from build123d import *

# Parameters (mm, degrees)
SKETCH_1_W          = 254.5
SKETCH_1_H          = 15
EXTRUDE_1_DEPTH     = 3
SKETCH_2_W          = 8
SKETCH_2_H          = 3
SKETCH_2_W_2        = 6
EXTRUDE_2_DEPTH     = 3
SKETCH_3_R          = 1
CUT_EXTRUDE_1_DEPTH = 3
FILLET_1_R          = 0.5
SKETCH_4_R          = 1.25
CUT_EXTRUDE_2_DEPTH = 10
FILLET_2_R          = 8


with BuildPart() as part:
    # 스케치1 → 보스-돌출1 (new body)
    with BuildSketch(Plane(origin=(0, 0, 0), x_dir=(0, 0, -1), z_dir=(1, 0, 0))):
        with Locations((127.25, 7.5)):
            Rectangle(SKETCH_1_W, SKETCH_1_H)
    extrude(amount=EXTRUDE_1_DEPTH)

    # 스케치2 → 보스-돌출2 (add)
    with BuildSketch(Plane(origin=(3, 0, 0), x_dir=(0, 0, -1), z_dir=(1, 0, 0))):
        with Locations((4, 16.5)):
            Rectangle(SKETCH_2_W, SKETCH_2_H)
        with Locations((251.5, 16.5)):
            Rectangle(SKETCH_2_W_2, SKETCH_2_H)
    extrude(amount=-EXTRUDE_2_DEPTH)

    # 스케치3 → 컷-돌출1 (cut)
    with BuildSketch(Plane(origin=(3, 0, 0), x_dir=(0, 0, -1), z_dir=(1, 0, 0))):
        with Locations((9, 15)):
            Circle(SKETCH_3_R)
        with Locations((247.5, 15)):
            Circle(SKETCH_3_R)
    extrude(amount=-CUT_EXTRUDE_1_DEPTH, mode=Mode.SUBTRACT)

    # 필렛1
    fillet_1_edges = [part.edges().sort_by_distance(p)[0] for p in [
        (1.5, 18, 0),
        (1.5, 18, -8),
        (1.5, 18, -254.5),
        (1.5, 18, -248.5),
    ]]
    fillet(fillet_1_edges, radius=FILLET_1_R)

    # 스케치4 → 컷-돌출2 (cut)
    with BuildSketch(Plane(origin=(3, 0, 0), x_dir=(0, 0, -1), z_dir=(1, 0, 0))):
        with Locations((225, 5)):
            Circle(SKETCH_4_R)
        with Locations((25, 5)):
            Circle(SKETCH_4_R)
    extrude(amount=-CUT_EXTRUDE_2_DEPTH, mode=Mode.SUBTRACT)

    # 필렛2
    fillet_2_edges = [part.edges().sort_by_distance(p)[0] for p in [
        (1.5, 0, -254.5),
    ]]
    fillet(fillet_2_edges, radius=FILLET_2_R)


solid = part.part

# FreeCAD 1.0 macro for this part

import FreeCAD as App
import Part
import Sketcher
from FreeCAD import Vector


def edges_at(feature, points):
    """Names of the edges that pass closest to the given points."""
    edges = feature.Shape.Edges
    near = lambda p: min(range(len(edges)), key=lambda i: edges[i].distToShape(Part.Vertex(*p))[0])
    return sorted({f"Edge{near(p) + 1}" for p in points})

doc = App.newDocument("Part")
body = doc.addObject("PartDesign::Body", "Body")

# Sketch on YZ plane
sketch1 = doc.addObject("Sketcher::SketchObject", "Sketch")
body.addObject(sketch1)
sketch1.AttachmentSupport = (doc.YZ_Plane, [""])
sketch1.MapMode = "FlatFace"
sketch1.addGeometry(Part.LineSegment(Vector(15, 0, 0), Vector(0, 0, 0)), False)
sketch1.addGeometry(Part.LineSegment(Vector(0, 0, 0), Vector(0, -254, 0)), False)
sketch1.addGeometry(Part.LineSegment(Vector(0, -254, 0), Vector(15, -254, 0)), False)
sketch1.addGeometry(Part.LineSegment(Vector(15, -254, 0), Vector(15, 0, 0)), False)
sketch1.addConstraint(Sketcher.Constraint("Coincident", 0, 2, 1, 1))
sketch1.addConstraint(Sketcher.Constraint("Coincident", 1, 2, 2, 1))
sketch1.addConstraint(Sketcher.Constraint("Coincident", 2, 2, 3, 1))
sketch1.addConstraint(Sketcher.Constraint("Coincident", 3, 2, 0, 1))
sketch1.addConstraint(Sketcher.Constraint("Horizontal", 0))
sketch1.addConstraint(Sketcher.Constraint("Vertical", 1))
sketch1.addConstraint(Sketcher.Constraint("Horizontal", 2))
sketch1.addConstraint(Sketcher.Constraint("Vertical", 3))
sketch1.addConstraint(Sketcher.Constraint("Coincident", 0, 2, -1, 1))
sketch1.addConstraint(Sketcher.Constraint("DistanceX", 0, 2, 0, 1, 15.0))
sketch1.addConstraint(Sketcher.Constraint("DistanceY", 1, 2, 1, 1, 254.5))
pad1 = doc.addObject("PartDesign::Pad", "Pad")
body.addObject(pad1)
pad1.Profile = sketch1
pad1.Length = 3

# Sketch on YZ plane
sketch2 = doc.addObject("Sketcher::SketchObject", "Sketch001")
body.addObject(sketch2)
sketch2.AttachmentSupport = (doc.YZ_Plane, [""])
sketch2.MapMode = "FlatFace"
sketch2.AttachmentOffset = App.Placement(Vector(0, 0, 3), App.Rotation())
sketch2.addGeometry(Part.LineSegment(Vector(18, 0, 0), Vector(15, 0, 0)), False)
sketch2.addGeometry(Part.LineSegment(Vector(15, 0, 0), Vector(15, -8, 0)), False)
sketch2.addGeometry(Part.LineSegment(Vector(15, -8, 0), Vector(18, -8, 0)), False)
sketch2.addGeometry(Part.LineSegment(Vector(18, -8, 0), Vector(18, 0, 0)), False)
sketch2.addGeometry(Part.LineSegment(Vector(18, -248.5, 0), Vector(15, -248.5, 0)), False)
sketch2.addGeometry(Part.LineSegment(Vector(15, -248.5, 0), Vector(15, -254.5, 0)), False)
sketch2.addGeometry(Part.LineSegment(Vector(15, -254.5, 0), Vector(18, -254.5, 0)), False)
sketch2.addGeometry(Part.LineSegment(Vector(18, -254.5, 0), Vector(18, -248.5, 0)), False)
sketch2.addConstraint(Sketcher.Constraint("Coincident", 0, 2, 1, 1))
sketch2.addConstraint(Sketcher.Constraint("Coincident", 1, 2, 2, 1))
sketch2.addConstraint(Sketcher.Constraint("Coincident", 2, 2, 3, 1))
sketch2.addConstraint(Sketcher.Constraint("Coincident", 3, 2, 0, 1))
sketch2.addConstraint(Sketcher.Constraint("Coincident", 4, 2, 5, 1))
sketch2.addConstraint(Sketcher.Constraint("Coincident", 5, 2, 6, 1))
sketch2.addConstraint(Sketcher.Constraint("Coincident", 6, 2, 7, 1))
sketch2.addConstraint(Sketcher.Constraint("Coincident", 7, 2, 4, 1))
sketch2.addConstraint(Sketcher.Constraint("Horizontal", 0))
sketch2.addConstraint(Sketcher.Constraint("Vertical", 1))
sketch2.addConstraint(Sketcher.Constraint("Horizontal", 2))
sketch2.addConstraint(Sketcher.Constraint("Vertical", 3))
sketch2.addConstraint(Sketcher.Constraint("Horizontal", 4))
sketch2.addConstraint(Sketcher.Constraint("Vertical", 5))
sketch2.addConstraint(Sketcher.Constraint("Horizontal", 6))
sketch2.addConstraint(Sketcher.Constraint("Vertical", 7))
sketch2.addConstraint(Sketcher.Constraint("PointOnObject", 0, 2, -1))
sketch2.addConstraint(Sketcher.Constraint("Vertical", 1, 2, 4, 2))
sketch2.addConstraint(Sketcher.Constraint("Vertical", 3, 2, 6, 2))
sketch2.addConstraint(Sketcher.Constraint("DistanceX", 0, 2, 0, 1, 3.0))
sketch2.addConstraint(Sketcher.Constraint("DistanceY", 1, 2, 1, 1, 8.0))
sketch2.addConstraint(Sketcher.Constraint("DistanceY", 5, 2, 5, 1, 6.0))
sketch2.addConstraint(Sketcher.Constraint("DistanceX", -1, 1, 0, 2, 15.0))
sketch2.addConstraint(Sketcher.Constraint("DistanceY", 4, 2, -1, 1, 248.5))
pad2 = doc.addObject("PartDesign::Pad", "Pad001")
body.addObject(pad2)
pad2.Profile = sketch2
pad2.Length = 3
pad2.Reversed = True

# Sketch on YZ plane
sketch3 = doc.addObject("Sketcher::SketchObject", "Sketch002")
body.addObject(sketch3)
sketch3.AttachmentSupport = (doc.YZ_Plane, [""])
sketch3.MapMode = "FlatFace"
sketch3.AttachmentOffset = App.Placement(Vector(0, 0, 3), App.Rotation())
sketch3.addGeometry(Part.Circle(Vector(15, -9, 0), Vector(0, 0, 1), 1), False)
sketch3.addGeometry(Part.Circle(Vector(15, -247.5, 0), Vector(0, 0, 1), 1), False)
sketch3.addConstraint(Sketcher.Constraint("Equal", 0, 1))
sketch3.addConstraint(Sketcher.Constraint("Vertical", 0, 3, 1, 3))
sketch3.addConstraint(Sketcher.Constraint("Diameter", 0, 2.0))
sketch3.addConstraint(Sketcher.Constraint("DistanceX", -1, 1, 0, 3, 15.0))
sketch3.addConstraint(Sketcher.Constraint("DistanceY", 0, 3, -1, 1, 9.0))
sketch3.addConstraint(Sketcher.Constraint("DistanceY", 1, 3, -1, 1, 247.5))
pocket1 = doc.addObject("PartDesign::Pocket", "Pocket")
body.addObject(pocket1)
pocket1.Profile = sketch3
pocket1.Length = 3
doc.recompute()

fillet = doc.addObject("PartDesign::Fillet", "Fillet")
body.addObject(fillet)
fillet.Base = (pocket1, edges_at(pocket1, [
    (1.5, 18, 0),
    (1.5, 18, -8),
    (1.5, 18, -254.5),
    (1.5, 18, -248.5),
]))
fillet.Radius = 0.5

# Sketch on YZ plane
sketch4 = doc.addObject("Sketcher::SketchObject", "Sketch003")
body.addObject(sketch4)
sketch4.AttachmentSupport = (doc.YZ_Plane, [""])
sketch4.MapMode = "FlatFace"
sketch4.AttachmentOffset = App.Placement(Vector(0, 0, 3), App.Rotation())
sketch4.addGeometry(Part.Circle(Vector(5, -225, 0), Vector(0, 0, 1), 1.2), False)
sketch4.addGeometry(Part.Circle(Vector(5, -25, 0), Vector(0, 0, 1), 1.2), False)
sketch4.addConstraint(Sketcher.Constraint("Equal", 0, 1))
sketch4.addConstraint(Sketcher.Constraint("Vertical", 0, 3, 1, 3))
sketch4.addConstraint(Sketcher.Constraint("Diameter", 0, 2.5))
sketch4.addConstraint(Sketcher.Constraint("DistanceX", -1, 1, 0, 3, 5.0))
sketch4.addConstraint(Sketcher.Constraint("DistanceY", 0, 3, -1, 1, 225.0))
sketch4.addConstraint(Sketcher.Constraint("DistanceY", 1, 3, -1, 1, 25.0))
pocket2 = doc.addObject("PartDesign::Pocket", "Pocket001")
body.addObject(pocket2)
pocket2.Profile = sketch4
pocket2.Length = 10
doc.recompute()

fillet2 = doc.addObject("PartDesign::Fillet", "Fillet001")
body.addObject(fillet2)
fillet2.Base = (pocket2, edges_at(pocket2, [(1.5, 0, -254.5)]))
fillet2.Radius = 8

doc.recompute()
